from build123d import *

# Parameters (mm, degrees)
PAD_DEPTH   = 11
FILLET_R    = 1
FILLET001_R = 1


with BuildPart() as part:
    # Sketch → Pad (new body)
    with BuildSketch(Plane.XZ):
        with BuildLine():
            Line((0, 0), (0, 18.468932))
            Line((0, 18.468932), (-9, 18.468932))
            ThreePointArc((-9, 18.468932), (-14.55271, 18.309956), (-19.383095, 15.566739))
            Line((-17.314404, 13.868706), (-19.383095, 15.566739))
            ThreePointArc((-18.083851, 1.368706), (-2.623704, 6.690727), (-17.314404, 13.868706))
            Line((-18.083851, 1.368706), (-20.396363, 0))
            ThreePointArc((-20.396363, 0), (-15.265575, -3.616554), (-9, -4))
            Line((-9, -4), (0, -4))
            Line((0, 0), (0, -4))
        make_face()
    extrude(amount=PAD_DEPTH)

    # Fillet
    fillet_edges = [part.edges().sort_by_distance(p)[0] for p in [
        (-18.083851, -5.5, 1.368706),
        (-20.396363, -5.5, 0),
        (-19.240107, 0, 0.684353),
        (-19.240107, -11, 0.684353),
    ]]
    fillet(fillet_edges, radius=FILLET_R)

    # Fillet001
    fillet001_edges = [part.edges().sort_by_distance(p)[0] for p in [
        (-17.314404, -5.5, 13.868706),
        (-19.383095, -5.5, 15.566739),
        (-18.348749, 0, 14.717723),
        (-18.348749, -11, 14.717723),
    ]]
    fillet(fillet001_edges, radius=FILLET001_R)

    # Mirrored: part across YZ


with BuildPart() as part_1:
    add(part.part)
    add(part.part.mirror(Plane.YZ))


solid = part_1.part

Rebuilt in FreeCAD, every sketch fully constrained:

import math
import FreeCAD as App
import Part
import Sketcher
Q = App.Units.Quantity


def edges_at(feature, points):
    """Names of the edges that pass closest to the given points."""
    edges = feature.Shape.Edges
    near = lambda p: min(range(len(edges)), key=lambda i: edges[i].distToShape(Part.Vertex(*p))[0])
    return sorted({f"Edge{near(p) + 1}" for p in points})

doc = App.newDocument("Part")
params = doc.addObject("Spreadsheet::Sheet", "Params")
for row, (alias, value) in enumerate([
    ("sketch1_radius", "11.500002 mm"),
    ("sketch1_radius2", "11.499999 mm"),
    ("sketch1_width", "9 mm"),
    ("sketch1_radius3", "8.85 mm"),
    ("pad1_length", "11 mm"),
    ("fillet_radius", "1 mm"),
    ("fillet2_radius", "1 mm"),
], start=1):
    params.set(f"A{row}", alias)
    params.set(f"B{row}", "=" + value)
    params.setAlias(f"B{row}", alias)

body = doc.addObject("PartDesign::Body", "Body")

# Sketch on XZ plane
sketch1 = doc.addObject("Sketcher::SketchObject", "Sketch")
body.addObject(sketch1)
sketch1.AttachmentSupport = (doc.XZ_Plane, [""])
sketch1.MapMode = "FlatFace"
sketch1.addGeometry([
    Part.LineSegment(App.Vector(0, 18.5, 0), App.Vector(-9, 18.5, 0)),  # 0
    Part.ArcOfCircle(Part.Circle(App.Vector(-11.5, 7.2, 0), App.Vector(0, 0, 1), 11.5), math.radians(78), math.radians(134)),  # 1
    Part.LineSegment(App.Vector(-19.4, 15.6, 0), App.Vector(-17.3, 13.9, 0)),  # 2
    Part.ArcOfCircle(Part.Circle(App.Vector(-11.5, 7.2, 0), App.Vector(0, 0, 1), 8.8), math.radians(-138), math.radians(131)),  # 3
    Part.LineSegment(App.Vector(-18.1, 1.4, 0), App.Vector(-20.4, 0, 0)),  # 4
    Part.ArcOfCircle(Part.Circle(App.Vector(-11.5, 7.2, 0), App.Vector(0, 0, 1), 11.5), math.radians(-141), math.radians(-78)),  # 5
    Part.LineSegment(App.Vector(-9, -4, 0), App.Vector(0, -4, 0)),  # 6
    Part.LineSegment(App.Vector(0, -4, 0), App.Vector(0, 18.5, 0)),  # 7
], False)
sketch1.addConstraint([
    Sketcher.Constraint("Coincident", 0, 2, 1, 1),
    Sketcher.Constraint("Coincident", 1, 2, 2, 1),
    Sketcher.Constraint("Coincident", 2, 2, 3, 2),
    Sketcher.Constraint("Coincident", 3, 1, 4, 1),
    Sketcher.Constraint("Coincident", 4, 2, 5, 1),
    Sketcher.Constraint("Coincident", 5, 2, 6, 1),
    Sketcher.Constraint("Coincident", 6, 2, 7, 1),
    Sketcher.Constraint("Coincident", 7, 2, 0, 1),
    Sketcher.Constraint("Horizontal", 0),
    Sketcher.Constraint("Horizontal", 6),
    Sketcher.Constraint("Vertical", 7),
    Sketcher.Constraint("Coincident", 3, 3, 1, 3),
    Sketcher.Constraint("Coincident", 5, 3, 1, 3),
    Sketcher.Constraint("PointOnObject", 4, 2, -1),
    Sketcher.Constraint("PointOnObject", 6, 2, -2),
    Sketcher.Constraint("Vertical", 0, 2, 5, 2),
    Sketcher.Constraint("Radius", 1, Q("11.500002 mm")),
    Sketcher.Constraint("Radius", 5, Q("11.499999 mm")),
    Sketcher.Constraint("DistanceX", 0, 2, 0, 1, Q("9 mm")),
    Sketcher.Constraint("Radius", 3, Q("8.85 mm")),
    Sketcher.Constraint("DistanceY", 5, 2, -1, 1, Q("4 mm")),
    Sketcher.Constraint("Angle", 2, Q("-39.380001 deg")),
    Sketcher.Constraint("Angle", 4, Q("-149.379992 deg")),
    Sketcher.Constraint("DistanceY", 3, 1, 2, 2, Q("12.5 mm")),
    Sketcher.Constraint("DistanceY", 7, 1, 7, 2, Q("22.468932 mm")),
])
sketch1.setExpression("Constraints[16]", "Params.sketch1_radius")
sketch1.setExpression("Constraints[17]", "Params.sketch1_radius2")
sketch1.setExpression("Constraints[18]", "Params.sketch1_width")
sketch1.setExpression("Constraints[19]", "Params.sketch1_radius3")
pad1 = doc.addObject("PartDesign::Pad", "Pad")
body.addObject(pad1)
pad1.Profile = sketch1
pad1.setExpression("Length", "Params.pad1_length")
doc.recompute()

fillet = doc.addObject("PartDesign::Fillet", "Fillet")
body.addObject(fillet)
fillet.Base = (pad1, edges_at(pad1, [
    (-18.084, -5.5, 1.369),
    (-20.396, -5.5, 0),
    (-19.24, 0, 0.684),
    (-19.24, -11, 0.684),
]))
fillet.setExpression("Radius", "Params.fillet_radius")
doc.recompute()

fillet2 = doc.addObject("PartDesign::Fillet", "Fillet001")
body.addObject(fillet2)
fillet2.Base = (fillet, edges_at(fillet, [
    (-17.314, -5.5, 13.869),
    (-19.383, -5.5, 15.567),
    (-18.349, 0, 14.718),
    (-18.349, -11, 14.718),
]))
fillet2.setExpression("Radius", "Params.fillet2_radius")
body2 = doc.addObject("PartDesign::Body", "Body001")
doc.recompute()

body2.BaseFeature = body
doc.recompute()

mirroring = doc.addObject("Part::Mirroring", "Mirroring")
mirroring.Source = body
mirroring.Base = App.Vector(0, 0, 0)
mirroring.Normal = App.Vector(1, 0, 0)
body3 = doc.addObject("PartDesign::Body", "Body002")
body3.BaseFeature = mirroring
boolean = doc.addObject("PartDesign::Boolean", "Boolean")
body2.addObject(boolean)
boolean.Type = "Fuse"
boolean.addObjects([body3])
doc.recompute()
mirroring.Visibility = False

doc.recompute()
